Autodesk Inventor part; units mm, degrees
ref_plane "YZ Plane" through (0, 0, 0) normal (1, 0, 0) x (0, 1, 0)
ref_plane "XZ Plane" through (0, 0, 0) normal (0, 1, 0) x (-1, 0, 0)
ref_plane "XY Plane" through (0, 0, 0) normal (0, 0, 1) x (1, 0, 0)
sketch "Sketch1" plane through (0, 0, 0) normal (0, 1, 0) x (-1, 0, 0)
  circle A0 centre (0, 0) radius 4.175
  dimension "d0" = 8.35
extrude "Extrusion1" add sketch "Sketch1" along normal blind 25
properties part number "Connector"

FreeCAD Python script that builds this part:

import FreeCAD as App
import Part
import Sketcher
from FreeCAD import Vector
Q = App.Units.Quantity

doc = App.newDocument("Part")
body = doc.addObject("PartDesign::Body", "Body")

sketch1 = body.newObject("Sketcher::SketchObject", "Sketch")
sketch1.AttachmentSupport = (doc.getObject("XZ_Plane"), [""])
sketch1.MapMode = "FlatFace"
sketch1.addGeometry(Part.Circle(Vector(0, 0, 0), Vector(0, 0, 1), 4.175), False)
sketch1.addConstraint(Sketcher.Constraint("Coincident", 0, 3, -1, 1))
sketch1.addConstraint(Sketcher.Constraint("Diameter", 0, Q("8.35 mm")))
pad1 = body.newObject("PartDesign::Pad", "Pad")
pad1.Profile = sketch1
pad1.Length = 25
pad1.Reversed = True

doc.recompute()
